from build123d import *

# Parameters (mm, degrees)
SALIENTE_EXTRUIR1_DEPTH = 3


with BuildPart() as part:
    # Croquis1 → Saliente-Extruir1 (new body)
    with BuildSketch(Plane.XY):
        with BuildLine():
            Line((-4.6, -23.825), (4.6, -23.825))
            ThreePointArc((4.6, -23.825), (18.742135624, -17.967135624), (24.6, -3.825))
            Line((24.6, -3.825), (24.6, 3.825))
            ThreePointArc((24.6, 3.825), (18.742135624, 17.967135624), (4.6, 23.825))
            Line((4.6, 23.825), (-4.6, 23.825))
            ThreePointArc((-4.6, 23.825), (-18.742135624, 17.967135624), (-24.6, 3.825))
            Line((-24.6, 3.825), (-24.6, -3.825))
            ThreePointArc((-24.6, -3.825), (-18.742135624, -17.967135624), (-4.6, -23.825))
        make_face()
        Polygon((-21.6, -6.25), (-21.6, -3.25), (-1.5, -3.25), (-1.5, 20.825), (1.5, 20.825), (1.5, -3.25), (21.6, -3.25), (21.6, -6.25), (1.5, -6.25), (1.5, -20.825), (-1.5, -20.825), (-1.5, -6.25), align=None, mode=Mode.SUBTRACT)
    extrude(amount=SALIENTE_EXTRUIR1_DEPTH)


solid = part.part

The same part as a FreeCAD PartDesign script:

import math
import FreeCAD as App
import Part
import Sketcher
Q = App.Units.Quantity


def add_polygon(sketch, points):
    """Adds a closed chain of lines whose ends are joined by coincident constraints."""
    first, n = sketch.GeometryCount, len(points)
    for a, b in zip(points, points[1:] + points[:1]):
        sketch.addGeometry(Part.LineSegment(App.Vector(*a, 0), App.Vector(*b, 0)), False)
    for i in range(n):
        sketch.addConstraint(Sketcher.Constraint("Coincident", first + i, 2, first + (i + 1) % n, 1))

doc = App.newDocument("Part")
body = doc.addObject("PartDesign::Body", "Body")

sketch1 = body.newObject("Sketcher::SketchObject", "Sketch")
sketch1.AttachmentSupport = (doc.getObject("XY_Plane"), [""])
sketch1.MapMode = "FlatFace"
sketch1.addGeometry(Part.LineSegment(App.Vector(-4.6, -23.825, 0), App.Vector(4.6, -23.825, 0)), False)
sketch1.addGeometry(Part.ArcOfCircle(Part.Circle(App.Vector(4.6, -3.825, 0), App.Vector(0, 0, 1), 20), math.radians(-90), math.radians(0)), False)
sketch1.addGeometry(Part.LineSegment(App.Vector(24.6, -3.825, 0), App.Vector(24.6, 3.825, 0)), False)
sketch1.addGeometry(Part.ArcOfCircle(Part.Circle(App.Vector(4.6, 3.825, 0), App.Vector(0, 0, 1), 20), math.radians(0), math.radians(90)), False)
sketch1.addGeometry(Part.LineSegment(App.Vector(4.6, 23.825, 0), App.Vector(-4.6, 23.825, 0)), False)
sketch1.addGeometry(Part.ArcOfCircle(Part.Circle(App.Vector(-4.6, 3.825, 0), App.Vector(0, 0, 1), 20), math.radians(90), math.radians(180)), False)
sketch1.addGeometry(Part.LineSegment(App.Vector(-24.6, 3.825, 0), App.Vector(-24.6, -3.825, 0)), False)
sketch1.addGeometry(Part.ArcOfCircle(Part.Circle(App.Vector(-4.6, -3.825, 0), App.Vector(0, 0, 1), 20), math.radians(180), math.radians(270)), False)
add_polygon(sketch1, [(-1.5, -6.25), (-21.6, -6.25), (-21.6, -3.25), (-1.5, -3.25), (-1.5, 20.825), (1.5, 20.825), (1.5, -3.25), (21.6, -3.25), (21.6, -6.25), (1.5, -6.25), (1.5, -20.825), (-1.5, -20.825)])
sketch1.addConstraint([
    Sketcher.Constraint("Tangent", 0, 2, 1, 1),
    Sketcher.Constraint("Tangent", 1, 2, 2, 1),
    Sketcher.Constraint("Tangent", 2, 2, 3, 1),
    Sketcher.Constraint("Tangent", 3, 2, 4, 1),
    Sketcher.Constraint("Tangent", 4, 2, 5, 1),
    Sketcher.Constraint("Tangent", 5, 2, 6, 1),
    Sketcher.Constraint("Tangent", 6, 2, 7, 1),
    Sketcher.Constraint("Tangent", 7, 2, 0, 1),
    Sketcher.Constraint("Horizontal", 0),
    Sketcher.Constraint("Vertical", 2),
    Sketcher.Constraint("Horizontal", 4),
    Sketcher.Constraint("Vertical", 6),
    Sketcher.Constraint("Horizontal", 8),
    Sketcher.Constraint("Vertical", 9),
    Sketcher.Constraint("Horizontal", 10),
    Sketcher.Constraint("Vertical", 11),
    Sketcher.Constraint("Horizontal", 12),
    Sketcher.Constraint("Vertical", 13),
    Sketcher.Constraint("Horizontal", 14),
    Sketcher.Constraint("Vertical", 15),
    Sketcher.Constraint("Horizontal", 16),
    Sketcher.Constraint("Vertical", 17),
    Sketcher.Constraint("Horizontal", 18),
    Sketcher.Constraint("Vertical", 19),
    Sketcher.Constraint("Equal", 1, 3),
    Sketcher.Constraint("Equal", 3, 5),
    Sketcher.Constraint("Equal", 5, 7),
    Sketcher.Constraint("Symmetric", 1, 3, 5, 3, -1, 1),
    Sketcher.Constraint("Symmetric", 11, 2, 17, 2, -1, 1),
    Sketcher.Constraint("Symmetric", 10, 2, 13, 2, -2),
    Sketcher.Constraint("Symmetric", 8, 2, 15, 2, -2),
    Sketcher.Constraint("Vertical", 11, 2, 18, 2),
    Sketcher.Constraint("Equal", 18, 9),
    Sketcher.Constraint("Radius", 1, Q("20 mm")),
    Sketcher.Constraint("DistanceX", 12, 1, 12, 2, Q("3 mm")),
    Sketcher.Constraint("DistanceX", 0, 1, 0, 2, Q("9.2 mm")),
    Sketcher.Constraint("DistanceX", 8, 2, 8, 1, Q("20.1 mm")),
    Sketcher.Constraint("DistanceY", 11, 2, 4, 2, Q("3 mm")),
    Sketcher.Constraint("DistanceY", 2, 1, 2, 2, Q("7.65 mm")),
    Sketcher.Constraint("DistanceY", 11, 1, 11, 2, Q("24.075 mm")),
])
pad1 = body.newObject("PartDesign::Pad", "Pad")
pad1.Profile = sketch1
pad1.Length = 3

doc.recompute()
